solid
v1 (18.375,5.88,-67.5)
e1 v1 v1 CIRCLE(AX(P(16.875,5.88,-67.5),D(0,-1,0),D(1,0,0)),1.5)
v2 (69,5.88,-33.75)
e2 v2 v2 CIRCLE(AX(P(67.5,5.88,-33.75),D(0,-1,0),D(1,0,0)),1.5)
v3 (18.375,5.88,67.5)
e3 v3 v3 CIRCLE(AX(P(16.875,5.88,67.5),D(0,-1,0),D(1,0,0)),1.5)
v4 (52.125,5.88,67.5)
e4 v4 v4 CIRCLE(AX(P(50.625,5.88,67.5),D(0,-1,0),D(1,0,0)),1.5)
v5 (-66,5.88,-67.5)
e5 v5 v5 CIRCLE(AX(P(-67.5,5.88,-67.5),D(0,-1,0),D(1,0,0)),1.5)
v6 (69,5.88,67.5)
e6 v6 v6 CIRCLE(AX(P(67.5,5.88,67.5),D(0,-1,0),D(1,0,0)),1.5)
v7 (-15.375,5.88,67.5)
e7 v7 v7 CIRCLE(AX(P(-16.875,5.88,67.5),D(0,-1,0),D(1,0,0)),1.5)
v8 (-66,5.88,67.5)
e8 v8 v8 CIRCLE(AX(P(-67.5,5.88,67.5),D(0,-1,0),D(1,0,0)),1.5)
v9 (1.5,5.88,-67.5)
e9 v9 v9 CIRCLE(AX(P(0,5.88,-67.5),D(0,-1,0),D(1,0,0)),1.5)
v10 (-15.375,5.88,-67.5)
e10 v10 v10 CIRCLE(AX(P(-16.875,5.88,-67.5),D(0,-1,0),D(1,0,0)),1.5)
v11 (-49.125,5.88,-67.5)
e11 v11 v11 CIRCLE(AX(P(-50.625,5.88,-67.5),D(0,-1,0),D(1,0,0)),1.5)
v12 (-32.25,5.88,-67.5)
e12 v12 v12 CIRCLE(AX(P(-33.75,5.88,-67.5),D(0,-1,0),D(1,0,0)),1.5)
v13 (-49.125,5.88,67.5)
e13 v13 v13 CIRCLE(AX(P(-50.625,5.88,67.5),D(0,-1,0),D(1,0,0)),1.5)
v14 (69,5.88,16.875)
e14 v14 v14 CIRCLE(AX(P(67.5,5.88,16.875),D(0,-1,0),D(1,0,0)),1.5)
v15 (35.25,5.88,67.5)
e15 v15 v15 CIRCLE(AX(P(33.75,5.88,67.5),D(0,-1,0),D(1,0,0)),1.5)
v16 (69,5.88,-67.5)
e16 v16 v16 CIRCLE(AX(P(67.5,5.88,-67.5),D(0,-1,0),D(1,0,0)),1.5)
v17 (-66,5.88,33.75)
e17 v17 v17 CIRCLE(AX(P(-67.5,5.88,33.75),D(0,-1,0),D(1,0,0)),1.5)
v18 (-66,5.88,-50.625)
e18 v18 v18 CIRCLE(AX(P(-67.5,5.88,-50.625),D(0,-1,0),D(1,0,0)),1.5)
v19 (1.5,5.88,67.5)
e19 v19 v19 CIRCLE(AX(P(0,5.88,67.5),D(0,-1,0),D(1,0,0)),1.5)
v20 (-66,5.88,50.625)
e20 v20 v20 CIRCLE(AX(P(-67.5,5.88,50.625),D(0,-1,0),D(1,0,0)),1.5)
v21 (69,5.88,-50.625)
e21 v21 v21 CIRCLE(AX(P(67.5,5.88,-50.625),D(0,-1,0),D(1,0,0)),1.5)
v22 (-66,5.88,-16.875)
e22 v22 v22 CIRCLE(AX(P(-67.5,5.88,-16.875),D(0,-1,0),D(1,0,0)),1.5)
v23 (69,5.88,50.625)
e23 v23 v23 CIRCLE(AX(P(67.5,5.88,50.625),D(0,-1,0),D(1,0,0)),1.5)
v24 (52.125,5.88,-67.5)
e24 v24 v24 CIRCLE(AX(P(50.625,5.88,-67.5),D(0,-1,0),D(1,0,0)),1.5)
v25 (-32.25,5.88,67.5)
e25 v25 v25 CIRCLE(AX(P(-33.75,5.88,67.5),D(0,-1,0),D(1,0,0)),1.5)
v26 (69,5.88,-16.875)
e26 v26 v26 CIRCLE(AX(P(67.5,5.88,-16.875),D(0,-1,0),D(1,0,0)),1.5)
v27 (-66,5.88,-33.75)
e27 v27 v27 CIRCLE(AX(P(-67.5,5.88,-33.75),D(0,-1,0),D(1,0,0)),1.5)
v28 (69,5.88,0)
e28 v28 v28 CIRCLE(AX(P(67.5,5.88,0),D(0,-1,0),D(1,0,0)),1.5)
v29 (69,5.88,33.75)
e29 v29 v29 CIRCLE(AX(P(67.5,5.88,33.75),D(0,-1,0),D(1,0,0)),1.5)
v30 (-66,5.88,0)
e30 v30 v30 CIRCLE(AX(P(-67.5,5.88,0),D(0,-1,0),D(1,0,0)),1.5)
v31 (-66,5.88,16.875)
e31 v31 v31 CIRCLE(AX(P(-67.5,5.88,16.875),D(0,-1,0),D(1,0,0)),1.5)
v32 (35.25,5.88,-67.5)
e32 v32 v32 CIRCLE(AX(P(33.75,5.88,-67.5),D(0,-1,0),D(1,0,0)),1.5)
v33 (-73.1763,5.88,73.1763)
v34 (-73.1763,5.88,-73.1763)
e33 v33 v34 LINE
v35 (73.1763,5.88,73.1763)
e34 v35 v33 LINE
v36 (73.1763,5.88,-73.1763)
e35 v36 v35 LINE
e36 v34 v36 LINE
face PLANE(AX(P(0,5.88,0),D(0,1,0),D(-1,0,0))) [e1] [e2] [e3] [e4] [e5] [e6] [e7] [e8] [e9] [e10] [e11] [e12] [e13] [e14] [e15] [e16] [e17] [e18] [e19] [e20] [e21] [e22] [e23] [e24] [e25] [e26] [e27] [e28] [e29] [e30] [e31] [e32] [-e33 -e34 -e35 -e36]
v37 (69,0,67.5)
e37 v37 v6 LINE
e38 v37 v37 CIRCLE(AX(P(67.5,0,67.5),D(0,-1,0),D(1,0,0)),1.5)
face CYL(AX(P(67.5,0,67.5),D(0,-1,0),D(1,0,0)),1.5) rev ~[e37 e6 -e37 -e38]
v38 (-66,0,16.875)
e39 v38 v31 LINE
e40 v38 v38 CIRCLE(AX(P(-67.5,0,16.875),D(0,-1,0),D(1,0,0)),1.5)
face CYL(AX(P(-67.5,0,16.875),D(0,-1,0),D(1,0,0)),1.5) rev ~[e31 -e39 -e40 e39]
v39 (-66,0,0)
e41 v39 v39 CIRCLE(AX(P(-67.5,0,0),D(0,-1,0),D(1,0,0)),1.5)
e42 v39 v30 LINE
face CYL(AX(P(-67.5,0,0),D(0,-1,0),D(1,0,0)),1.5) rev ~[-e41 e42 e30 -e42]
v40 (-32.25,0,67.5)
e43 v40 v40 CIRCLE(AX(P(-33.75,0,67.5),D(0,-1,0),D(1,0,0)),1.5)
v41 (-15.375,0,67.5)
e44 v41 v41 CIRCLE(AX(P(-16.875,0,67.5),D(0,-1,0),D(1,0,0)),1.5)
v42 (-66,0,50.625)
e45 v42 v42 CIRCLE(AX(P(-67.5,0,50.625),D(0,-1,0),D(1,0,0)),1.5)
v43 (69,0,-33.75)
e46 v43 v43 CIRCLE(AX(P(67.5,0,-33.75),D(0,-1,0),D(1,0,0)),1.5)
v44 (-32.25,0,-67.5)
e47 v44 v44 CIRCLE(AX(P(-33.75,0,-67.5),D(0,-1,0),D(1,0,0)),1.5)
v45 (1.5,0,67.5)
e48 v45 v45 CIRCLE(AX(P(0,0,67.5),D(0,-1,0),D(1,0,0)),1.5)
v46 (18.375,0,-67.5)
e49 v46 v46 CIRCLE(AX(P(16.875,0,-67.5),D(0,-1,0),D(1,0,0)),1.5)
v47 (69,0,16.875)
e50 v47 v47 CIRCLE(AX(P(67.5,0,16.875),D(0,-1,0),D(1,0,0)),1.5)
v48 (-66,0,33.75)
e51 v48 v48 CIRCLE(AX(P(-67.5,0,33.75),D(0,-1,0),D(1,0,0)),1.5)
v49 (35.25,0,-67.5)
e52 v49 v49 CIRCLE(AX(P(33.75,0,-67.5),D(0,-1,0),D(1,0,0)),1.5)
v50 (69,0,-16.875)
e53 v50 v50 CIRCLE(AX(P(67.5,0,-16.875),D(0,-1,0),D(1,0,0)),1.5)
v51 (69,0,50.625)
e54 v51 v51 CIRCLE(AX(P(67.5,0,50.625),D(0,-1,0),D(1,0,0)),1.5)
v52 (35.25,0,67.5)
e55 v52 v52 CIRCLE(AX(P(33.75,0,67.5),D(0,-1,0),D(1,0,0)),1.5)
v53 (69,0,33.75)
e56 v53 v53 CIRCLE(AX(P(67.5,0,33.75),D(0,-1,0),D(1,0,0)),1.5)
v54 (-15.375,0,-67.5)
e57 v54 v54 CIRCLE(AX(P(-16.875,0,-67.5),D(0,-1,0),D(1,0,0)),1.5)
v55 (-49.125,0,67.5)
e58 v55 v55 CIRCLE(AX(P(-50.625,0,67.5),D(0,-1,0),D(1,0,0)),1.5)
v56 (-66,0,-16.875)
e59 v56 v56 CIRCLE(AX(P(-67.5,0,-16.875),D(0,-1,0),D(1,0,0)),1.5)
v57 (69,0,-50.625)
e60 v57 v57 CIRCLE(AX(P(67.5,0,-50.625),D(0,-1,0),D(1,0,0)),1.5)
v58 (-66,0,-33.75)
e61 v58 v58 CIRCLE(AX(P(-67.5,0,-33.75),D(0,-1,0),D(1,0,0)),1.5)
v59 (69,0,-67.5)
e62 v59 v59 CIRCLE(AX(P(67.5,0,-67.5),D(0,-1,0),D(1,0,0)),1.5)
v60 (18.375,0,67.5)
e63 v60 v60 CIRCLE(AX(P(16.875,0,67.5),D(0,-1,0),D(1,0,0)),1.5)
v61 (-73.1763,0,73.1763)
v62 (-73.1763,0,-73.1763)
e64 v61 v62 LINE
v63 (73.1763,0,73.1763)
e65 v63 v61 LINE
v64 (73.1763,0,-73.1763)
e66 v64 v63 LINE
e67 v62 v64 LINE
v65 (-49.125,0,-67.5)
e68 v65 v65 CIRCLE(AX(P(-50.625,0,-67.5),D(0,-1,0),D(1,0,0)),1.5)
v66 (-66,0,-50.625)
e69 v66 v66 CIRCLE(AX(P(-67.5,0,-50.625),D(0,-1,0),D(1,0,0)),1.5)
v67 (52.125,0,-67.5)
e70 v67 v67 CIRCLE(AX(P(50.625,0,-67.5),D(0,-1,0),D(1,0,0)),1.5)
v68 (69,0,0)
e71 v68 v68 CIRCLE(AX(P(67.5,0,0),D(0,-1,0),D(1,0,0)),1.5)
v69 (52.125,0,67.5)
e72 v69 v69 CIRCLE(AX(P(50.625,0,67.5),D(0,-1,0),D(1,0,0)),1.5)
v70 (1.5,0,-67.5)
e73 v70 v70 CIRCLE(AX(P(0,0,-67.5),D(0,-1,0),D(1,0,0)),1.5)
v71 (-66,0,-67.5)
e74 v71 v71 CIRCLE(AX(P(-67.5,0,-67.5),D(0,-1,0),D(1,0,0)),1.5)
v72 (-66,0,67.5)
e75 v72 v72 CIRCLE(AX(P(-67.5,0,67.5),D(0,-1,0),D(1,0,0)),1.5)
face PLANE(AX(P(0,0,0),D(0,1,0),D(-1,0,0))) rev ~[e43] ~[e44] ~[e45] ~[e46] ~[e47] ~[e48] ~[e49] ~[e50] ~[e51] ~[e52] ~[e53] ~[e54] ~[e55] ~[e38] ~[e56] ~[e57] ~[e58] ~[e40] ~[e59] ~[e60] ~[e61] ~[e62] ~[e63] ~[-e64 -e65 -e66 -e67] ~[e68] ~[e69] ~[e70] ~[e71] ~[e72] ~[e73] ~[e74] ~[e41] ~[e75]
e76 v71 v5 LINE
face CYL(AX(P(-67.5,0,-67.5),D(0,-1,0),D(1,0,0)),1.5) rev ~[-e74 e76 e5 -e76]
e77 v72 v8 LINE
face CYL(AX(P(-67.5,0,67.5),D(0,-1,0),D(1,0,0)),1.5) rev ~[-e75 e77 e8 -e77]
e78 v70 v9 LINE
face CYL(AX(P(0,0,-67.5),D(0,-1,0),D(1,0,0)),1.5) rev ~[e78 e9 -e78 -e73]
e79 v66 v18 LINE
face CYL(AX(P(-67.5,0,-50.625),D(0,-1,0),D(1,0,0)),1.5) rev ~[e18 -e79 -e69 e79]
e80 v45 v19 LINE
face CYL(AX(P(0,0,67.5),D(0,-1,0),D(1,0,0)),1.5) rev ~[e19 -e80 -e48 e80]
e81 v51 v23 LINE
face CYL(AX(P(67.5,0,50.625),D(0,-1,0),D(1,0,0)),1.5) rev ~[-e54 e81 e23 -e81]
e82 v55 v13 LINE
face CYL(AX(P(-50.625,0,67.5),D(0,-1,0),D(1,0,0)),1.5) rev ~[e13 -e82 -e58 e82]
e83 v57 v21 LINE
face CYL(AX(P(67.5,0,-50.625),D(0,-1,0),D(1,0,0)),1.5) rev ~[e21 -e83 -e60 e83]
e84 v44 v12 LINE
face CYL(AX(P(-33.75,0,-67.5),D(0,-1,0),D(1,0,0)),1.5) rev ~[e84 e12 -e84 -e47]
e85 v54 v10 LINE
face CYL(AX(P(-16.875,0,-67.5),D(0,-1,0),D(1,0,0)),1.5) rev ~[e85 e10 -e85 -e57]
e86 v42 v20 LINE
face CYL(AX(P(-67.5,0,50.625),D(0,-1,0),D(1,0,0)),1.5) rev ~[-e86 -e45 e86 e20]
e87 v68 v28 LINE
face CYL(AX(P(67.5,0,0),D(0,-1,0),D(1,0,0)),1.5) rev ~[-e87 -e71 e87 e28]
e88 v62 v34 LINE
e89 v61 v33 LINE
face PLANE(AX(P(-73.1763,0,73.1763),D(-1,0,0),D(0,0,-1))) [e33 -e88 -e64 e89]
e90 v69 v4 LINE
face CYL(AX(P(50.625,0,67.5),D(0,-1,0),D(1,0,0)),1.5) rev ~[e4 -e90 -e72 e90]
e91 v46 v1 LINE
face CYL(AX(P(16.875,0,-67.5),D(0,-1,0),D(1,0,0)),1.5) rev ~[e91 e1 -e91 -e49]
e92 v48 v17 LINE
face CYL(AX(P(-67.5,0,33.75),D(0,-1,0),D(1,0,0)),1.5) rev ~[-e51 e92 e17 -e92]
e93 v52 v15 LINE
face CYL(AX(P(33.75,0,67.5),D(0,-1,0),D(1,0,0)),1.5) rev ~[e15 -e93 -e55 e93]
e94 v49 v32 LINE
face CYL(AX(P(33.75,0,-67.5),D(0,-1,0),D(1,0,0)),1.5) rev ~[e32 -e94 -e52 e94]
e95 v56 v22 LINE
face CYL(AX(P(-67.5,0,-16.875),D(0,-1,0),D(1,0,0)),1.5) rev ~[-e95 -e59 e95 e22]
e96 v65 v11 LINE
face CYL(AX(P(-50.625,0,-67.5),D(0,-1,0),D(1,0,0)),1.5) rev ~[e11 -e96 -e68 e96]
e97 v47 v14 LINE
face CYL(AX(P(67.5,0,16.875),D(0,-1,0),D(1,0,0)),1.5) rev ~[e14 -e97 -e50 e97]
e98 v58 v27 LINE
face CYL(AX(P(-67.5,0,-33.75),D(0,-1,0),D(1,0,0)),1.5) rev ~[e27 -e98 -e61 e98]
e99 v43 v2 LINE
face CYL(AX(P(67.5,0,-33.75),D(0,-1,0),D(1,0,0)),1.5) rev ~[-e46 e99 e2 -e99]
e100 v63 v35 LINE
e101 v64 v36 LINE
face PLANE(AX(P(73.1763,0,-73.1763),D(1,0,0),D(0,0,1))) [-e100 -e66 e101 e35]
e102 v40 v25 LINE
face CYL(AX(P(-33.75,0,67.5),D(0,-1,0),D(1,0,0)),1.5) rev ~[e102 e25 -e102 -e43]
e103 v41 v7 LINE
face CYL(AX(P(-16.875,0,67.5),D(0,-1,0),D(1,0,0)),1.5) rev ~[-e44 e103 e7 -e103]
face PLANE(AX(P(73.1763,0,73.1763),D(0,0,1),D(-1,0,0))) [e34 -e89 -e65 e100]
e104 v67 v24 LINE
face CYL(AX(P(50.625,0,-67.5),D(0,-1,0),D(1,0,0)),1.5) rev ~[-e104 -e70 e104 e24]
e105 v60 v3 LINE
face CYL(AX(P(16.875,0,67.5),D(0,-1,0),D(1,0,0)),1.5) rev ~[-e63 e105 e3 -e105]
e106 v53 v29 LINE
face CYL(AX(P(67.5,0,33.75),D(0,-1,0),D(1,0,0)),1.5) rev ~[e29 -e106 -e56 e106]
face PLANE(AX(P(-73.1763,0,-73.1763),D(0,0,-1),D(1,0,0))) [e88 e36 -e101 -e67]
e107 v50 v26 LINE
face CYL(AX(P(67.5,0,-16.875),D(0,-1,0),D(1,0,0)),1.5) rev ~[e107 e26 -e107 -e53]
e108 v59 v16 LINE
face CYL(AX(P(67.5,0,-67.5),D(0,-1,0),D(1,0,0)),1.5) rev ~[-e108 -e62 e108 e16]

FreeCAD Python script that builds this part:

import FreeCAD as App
import Part
import Sketcher

V = App.Vector

doc = App.newDocument("Part")
body = doc.addObject("PartDesign::Body", "Body")

# Sketch on XZ plane
sketch1 = body.newObject("Sketcher::SketchObject", "Sketch")
sketch1.AttachmentSupport = (doc.getObject("XZ_Plane"), [""])
sketch1.MapMode = "FlatFace"
sketch1.addGeometry([
    Part.LineSegment(V(75, 75, 0), V(75, -75, 0)),
    Part.LineSegment(V(75, -75, 0), V(-75, -75, 0)),
    Part.LineSegment(V(-75, -75, 0), V(-75, 75, 0)),
    Part.LineSegment(V(-75, 75, 0), V(75, 75, 0)),
], False)
sketch1.addConstraint([
    Sketcher.Constraint("Coincident", 0, 2, 1, 1),
    Sketcher.Constraint("Coincident", 1, 2, 2, 1),
    Sketcher.Constraint("Coincident", 2, 2, 3, 1),
    Sketcher.Constraint("Coincident", 3, 2, 0, 1),
    Sketcher.Constraint("Vertical", 0),
    Sketcher.Constraint("Horizontal", 1),
    Sketcher.Constraint("Vertical", 2),
    Sketcher.Constraint("Horizontal", 3),
    Sketcher.Constraint("Symmetric", 0, 2, 2, 2, -1, 1),
    Sketcher.Constraint("Equal", 3, 0),
    Sketcher.Constraint("DistanceX", 1, 2, 1, 1, 150.0),
])
pad1 = body.newObject("PartDesign::Pad", "Pad")
pad1.Profile = sketch1
pad1.Length = 5.88
pad1.Reversed = True

# Sketch on XZ plane
sketch2 = body.newObject("Sketcher::SketchObject", "Sketch001")
sketch2.AttachmentSupport = (doc.getObject("XZ_Plane"), [""])
sketch2.MapMode = "FlatFace"
sketch2.addGeometry([
    Part.LineSegment(V(-75, -75, 0), V(75, -75, 0)),  # 0
    Part.LineSegment(V(75, -75, 0), V(75, 75, 0)),  # 1
    Part.LineSegment(V(75, 75, 0), V(-75, 75, 0)),  # 2
    Part.LineSegment(V(-75, 75, 0), V(-75, -75, 0)),  # 3
    Part.LineSegment(V(73.2, -73.2, 0), V(-73.2, -73.2, 0)),  # 4
    Part.LineSegment(V(-73.2, -73.2, 0), V(-73.2, 73.2, 0)),  # 5
    Part.LineSegment(V(-73.2, 73.2, 0), V(73.2, 73.2, 0)),  # 6
    Part.LineSegment(V(73.2, 73.2, 0), V(73.2, -73.2, 0)),  # 7
    Part.Circle(V(-67.5, 67.5, 0), V(0, 0, 1), 1.5),  # 8
    Part.Circle(V(-50.6, 67.5, 0), V(0, 0, 1), 1.5),  # 9
    Part.Circle(V(-33.8, 67.5, 0), V(0, 0, 1), 1.5),  # 10
    Part.Circle(V(-16.9, 67.5, 0), V(0, 0, 1), 1.5),  # 11
    Part.Circle(V(0, 67.5, 0), V(0, 0, 1), 1.5),  # 12
    Part.Circle(V(16.9, 67.5, 0), V(0, 0, 1), 1.5),  # 13
    Part.Circle(V(33.8, 67.5, 0), V(0, 0, 1), 1.5),  # 14
    Part.Circle(V(50.6, 67.5, 0), V(0, 0, 1), 1.5),  # 15
    Part.Circle(V(67.5, 67.5, 0), V(0, 0, 1), 1.5),  # 16
    Part.Circle(V(-67.5, 50.6, 0), V(0, 0, 1), 1.5),  # 17
    Part.Circle(V(67.5, 50.6, 0), V(0, 0, 1), 1.5),  # 18
    Part.Circle(V(-67.5, 33.8, 0), V(0, 0, 1), 1.5),  # 19
    Part.Circle(V(67.5, 33.8, 0), V(0, 0, 1), 1.5),  # 20
    Part.Circle(V(-67.5, 16.9, 0), V(0, 0, 1), 1.5),  # 21
    Part.Circle(V(67.5, 16.9, 0), V(0, 0, 1), 1.5),  # 22
    Part.Circle(V(-67.5, 0, 0), V(0, 0, 1), 1.5),  # 23
    Part.Circle(V(67.5, 0, 0), V(0, 0, 1), 1.5),  # 24
    Part.Circle(V(-67.5, -16.9, 0), V(0, 0, 1), 1.5),  # 25
    Part.Circle(V(67.5, -16.9, 0), V(0, 0, 1), 1.5),  # 26
    Part.Circle(V(-67.5, -33.8, 0), V(0, 0, 1), 1.5),  # 27
    Part.Circle(V(67.5, -33.8, 0), V(0, 0, 1), 1.5),  # 28
    Part.Circle(V(-67.5, -50.6, 0), V(0, 0, 1), 1.5),  # 29
    Part.Circle(V(67.5, -50.6, 0), V(0, 0, 1), 1.5),  # 30
    Part.Circle(V(-67.5, -67.5, 0), V(0, 0, 1), 1.5),  # 31
    Part.Circle(V(-50.6, -67.5, 0), V(0, 0, 1), 1.5),  # 32
    Part.Circle(V(-33.8, -67.5, 0), V(0, 0, 1), 1.5),  # 33
    Part.Circle(V(-16.9, -67.5, 0), V(0, 0, 1), 1.5),  # 34
    Part.Circle(V(0, -67.5, 0), V(0, 0, 1), 1.5),  # 35
    Part.Circle(V(16.9, -67.5, 0), V(0, 0, 1), 1.5),  # 36
    Part.Circle(V(33.8, -67.5, 0), V(0, 0, 1), 1.5),  # 37
    Part.Circle(V(50.6, -67.5, 0), V(0, 0, 1), 1.5),  # 38
    Part.Circle(V(67.5, -67.5, 0), V(0, 0, 1), 1.5),  # 39
], False)
sketch2.addConstraint([
    Sketcher.Constraint("Coincident", 0, 2, 1, 1),
    Sketcher.Constraint("Coincident", 1, 2, 2, 1),
    Sketcher.Constraint("Coincident", 2, 2, 3, 1),
    Sketcher.Constraint("Coincident", 3, 2, 0, 1),
    Sketcher.Constraint("Coincident", 4, 2, 5, 1),
    Sketcher.Constraint("Coincident", 5, 2, 6, 1),
    Sketcher.Constraint("Coincident", 6, 2, 7, 1),
    Sketcher.Constraint("Coincident", 7, 2, 4, 1),
    Sketcher.Constraint("Horizontal", 0),
    Sketcher.Constraint("Vertical", 1),
    Sketcher.Constraint("Horizontal", 2),
    Sketcher.Constraint("Vertical", 3),
    Sketcher.Constraint("Horizontal", 4),
    Sketcher.Constraint("Vertical", 5),
    Sketcher.Constraint("Horizontal", 6),
    Sketcher.Constraint("Vertical", 7),
    Sketcher.Constraint("Equal", 8, 9),
    Sketcher.Constraint("Equal", 9, 10),
    Sketcher.Constraint("Equal", 10, 11),
    Sketcher.Constraint("Equal", 11, 12),
    Sketcher.Constraint("Equal", 12, 13),
    Sketcher.Constraint("Equal", 13, 14),
    Sketcher.Constraint("Equal", 14, 15),
    Sketcher.Constraint("Equal", 15, 16),
    Sketcher.Constraint("Equal", 16, 17),
    Sketcher.Constraint("Equal", 17, 18),
    Sketcher.Constraint("Equal", 18, 19),
    Sketcher.Constraint("Equal", 19, 20),
    Sketcher.Constraint("Equal", 20, 21),
    Sketcher.Constraint("Equal", 21, 22),
    Sketcher.Constraint("Equal", 22, 23),
    Sketcher.Constraint("Equal", 23, 24),
    Sketcher.Constraint("Equal", 24, 25),
    Sketcher.Constraint("Equal", 25, 26),
    Sketcher.Constraint("Equal", 26, 27),
    Sketcher.Constraint("Equal", 27, 28),
    Sketcher.Constraint("Equal", 28, 29),
    Sketcher.Constraint("Equal", 29, 30),
    Sketcher.Constraint("Equal", 30, 31),
    Sketcher.Constraint("Equal", 31, 32),
    Sketcher.Constraint("Equal", 32, 33),
    Sketcher.Constraint("Equal", 33, 34),
    Sketcher.Constraint("Equal", 34, 35),
    Sketcher.Constraint("Equal", 35, 36),
    Sketcher.Constraint("Equal", 36, 37),
    Sketcher.Constraint("Equal", 37, 38),
    Sketcher.Constraint("Equal", 38, 39),
    Sketcher.Constraint("Symmetric", 23, 3, 24, 3, -1, 1),
    Sketcher.Constraint("Symmetric", 22, 3, 25, 3, -1, 1),
    Sketcher.Constraint("Symmetric", 21, 3, 26, 3, -1, 1),
    Sketcher.Constraint("Symmetric", 20, 3, 27, 3, -1, 1),
    Sketcher.Constraint("Symmetric", 19, 3, 28, 3, -1, 1),
    Sketcher.Constraint("Symmetric", 18, 3, 29, 3, -1, 1),
    Sketcher.Constraint("Symmetric", 17, 3, 30, 3, -1, 1),
    Sketcher.Constraint("Symmetric", 16, 3, 31, 3, -1, 1),
    Sketcher.Constraint("Symmetric", 15, 3, 32, 3, -1, 1),
    Sketcher.Constraint("Symmetric", 14, 3, 33, 3, -1, 1),
    Sketcher.Constraint("Symmetric", 13, 3, 34, 3, -1, 1),
    Sketcher.Constraint("Symmetric", 12, 3, 35, 3, -1, 1),
    Sketcher.Constraint("Symmetric", 11, 3, 36, 3, -1, 1),
    Sketcher.Constraint("Symmetric", 10, 3, 37, 3, -1, 1),
    Sketcher.Constraint("Symmetric", 9, 3, 38, 3, -1, 1),
    Sketcher.Constraint("Symmetric", 8, 3, 39, 3, -1, 1),
    Sketcher.Constraint("Symmetric", 0, 2, 2, 2, -1, 1),
    Sketcher.Constraint("Symmetric", 4, 2, 6, 2, -1, 1),
    Sketcher.Constraint("Symmetric", 11, 3, 13, 3, -2),
    Sketcher.Constraint("Symmetric", 10, 3, 14, 3, -2),
    Sketcher.Constraint("Symmetric", 9, 3, 15, 3, -2),
    Sketcher.Constraint("Symmetric", 8, 3, 16, 3, -2),
    Sketcher.Constraint("Symmetric", 17, 3, 18, 3, -2),
    Sketcher.Constraint("Symmetric", 19, 3, 20, 3, -2),
    Sketcher.Constraint("Symmetric", 21, 3, 22, 3, -2),
    Sketcher.Constraint("PointOnObject", 12, 3, -2),
    Sketcher.Constraint("PointOnObject", 23, 3, -1),
    Sketcher.Constraint("Horizontal", 8, 3, 9, 3),
    Sketcher.Constraint("Horizontal", 9, 3, 10, 3),
    Sketcher.Constraint("Horizontal", 10, 3, 11, 3),
    Sketcher.Constraint("Horizontal", 11, 3, 12, 3),
    Sketcher.Constraint("Vertical", 8, 3, 17, 3),
    Sketcher.Constraint("Vertical", 17, 3, 19, 3),
    Sketcher.Constraint("Vertical", 19, 3, 21, 3),
    Sketcher.Constraint("Vertical", 21, 3, 23, 3),
    Sketcher.Constraint("Equal", 2, 1),
    Sketcher.Constraint("Equal", 6, 5),
    Sketcher.Constraint("Diameter", 8, 3.0),
    Sketcher.Constraint("DistanceX", 39, 3, 0, 2, 7.5),
    Sketcher.Constraint("DistanceY", 0, 2, 39, 3, 7.5),
    Sketcher.Constraint("DistanceX", 0, 1, 0, 2, 150.0),
    Sketcher.Constraint("DistanceX", 4, 2, 4, 1, 146.3526),
    Sketcher.Constraint("DistanceX", 11, 3, -1, 1, 16.875),
    Sketcher.Constraint("DistanceY", -1, 1, 21, 3, 16.875),
    Sketcher.Constraint("DistanceX", 8, 3, 9, 3, 16.875),
    Sketcher.Constraint("DistanceX", 9, 3, 10, 3, 16.875),
    Sketcher.Constraint("DistanceY", 17, 3, 8, 3, 16.875),
    Sketcher.Constraint("DistanceY", 19, 3, 17, 3, 16.875),
])
pocket1 = body.newObject("PartDesign::Pocket", "Pocket")
pocket1.Profile = sketch2
pocket1.Type = "UpToFirst"

doc.recompute()
